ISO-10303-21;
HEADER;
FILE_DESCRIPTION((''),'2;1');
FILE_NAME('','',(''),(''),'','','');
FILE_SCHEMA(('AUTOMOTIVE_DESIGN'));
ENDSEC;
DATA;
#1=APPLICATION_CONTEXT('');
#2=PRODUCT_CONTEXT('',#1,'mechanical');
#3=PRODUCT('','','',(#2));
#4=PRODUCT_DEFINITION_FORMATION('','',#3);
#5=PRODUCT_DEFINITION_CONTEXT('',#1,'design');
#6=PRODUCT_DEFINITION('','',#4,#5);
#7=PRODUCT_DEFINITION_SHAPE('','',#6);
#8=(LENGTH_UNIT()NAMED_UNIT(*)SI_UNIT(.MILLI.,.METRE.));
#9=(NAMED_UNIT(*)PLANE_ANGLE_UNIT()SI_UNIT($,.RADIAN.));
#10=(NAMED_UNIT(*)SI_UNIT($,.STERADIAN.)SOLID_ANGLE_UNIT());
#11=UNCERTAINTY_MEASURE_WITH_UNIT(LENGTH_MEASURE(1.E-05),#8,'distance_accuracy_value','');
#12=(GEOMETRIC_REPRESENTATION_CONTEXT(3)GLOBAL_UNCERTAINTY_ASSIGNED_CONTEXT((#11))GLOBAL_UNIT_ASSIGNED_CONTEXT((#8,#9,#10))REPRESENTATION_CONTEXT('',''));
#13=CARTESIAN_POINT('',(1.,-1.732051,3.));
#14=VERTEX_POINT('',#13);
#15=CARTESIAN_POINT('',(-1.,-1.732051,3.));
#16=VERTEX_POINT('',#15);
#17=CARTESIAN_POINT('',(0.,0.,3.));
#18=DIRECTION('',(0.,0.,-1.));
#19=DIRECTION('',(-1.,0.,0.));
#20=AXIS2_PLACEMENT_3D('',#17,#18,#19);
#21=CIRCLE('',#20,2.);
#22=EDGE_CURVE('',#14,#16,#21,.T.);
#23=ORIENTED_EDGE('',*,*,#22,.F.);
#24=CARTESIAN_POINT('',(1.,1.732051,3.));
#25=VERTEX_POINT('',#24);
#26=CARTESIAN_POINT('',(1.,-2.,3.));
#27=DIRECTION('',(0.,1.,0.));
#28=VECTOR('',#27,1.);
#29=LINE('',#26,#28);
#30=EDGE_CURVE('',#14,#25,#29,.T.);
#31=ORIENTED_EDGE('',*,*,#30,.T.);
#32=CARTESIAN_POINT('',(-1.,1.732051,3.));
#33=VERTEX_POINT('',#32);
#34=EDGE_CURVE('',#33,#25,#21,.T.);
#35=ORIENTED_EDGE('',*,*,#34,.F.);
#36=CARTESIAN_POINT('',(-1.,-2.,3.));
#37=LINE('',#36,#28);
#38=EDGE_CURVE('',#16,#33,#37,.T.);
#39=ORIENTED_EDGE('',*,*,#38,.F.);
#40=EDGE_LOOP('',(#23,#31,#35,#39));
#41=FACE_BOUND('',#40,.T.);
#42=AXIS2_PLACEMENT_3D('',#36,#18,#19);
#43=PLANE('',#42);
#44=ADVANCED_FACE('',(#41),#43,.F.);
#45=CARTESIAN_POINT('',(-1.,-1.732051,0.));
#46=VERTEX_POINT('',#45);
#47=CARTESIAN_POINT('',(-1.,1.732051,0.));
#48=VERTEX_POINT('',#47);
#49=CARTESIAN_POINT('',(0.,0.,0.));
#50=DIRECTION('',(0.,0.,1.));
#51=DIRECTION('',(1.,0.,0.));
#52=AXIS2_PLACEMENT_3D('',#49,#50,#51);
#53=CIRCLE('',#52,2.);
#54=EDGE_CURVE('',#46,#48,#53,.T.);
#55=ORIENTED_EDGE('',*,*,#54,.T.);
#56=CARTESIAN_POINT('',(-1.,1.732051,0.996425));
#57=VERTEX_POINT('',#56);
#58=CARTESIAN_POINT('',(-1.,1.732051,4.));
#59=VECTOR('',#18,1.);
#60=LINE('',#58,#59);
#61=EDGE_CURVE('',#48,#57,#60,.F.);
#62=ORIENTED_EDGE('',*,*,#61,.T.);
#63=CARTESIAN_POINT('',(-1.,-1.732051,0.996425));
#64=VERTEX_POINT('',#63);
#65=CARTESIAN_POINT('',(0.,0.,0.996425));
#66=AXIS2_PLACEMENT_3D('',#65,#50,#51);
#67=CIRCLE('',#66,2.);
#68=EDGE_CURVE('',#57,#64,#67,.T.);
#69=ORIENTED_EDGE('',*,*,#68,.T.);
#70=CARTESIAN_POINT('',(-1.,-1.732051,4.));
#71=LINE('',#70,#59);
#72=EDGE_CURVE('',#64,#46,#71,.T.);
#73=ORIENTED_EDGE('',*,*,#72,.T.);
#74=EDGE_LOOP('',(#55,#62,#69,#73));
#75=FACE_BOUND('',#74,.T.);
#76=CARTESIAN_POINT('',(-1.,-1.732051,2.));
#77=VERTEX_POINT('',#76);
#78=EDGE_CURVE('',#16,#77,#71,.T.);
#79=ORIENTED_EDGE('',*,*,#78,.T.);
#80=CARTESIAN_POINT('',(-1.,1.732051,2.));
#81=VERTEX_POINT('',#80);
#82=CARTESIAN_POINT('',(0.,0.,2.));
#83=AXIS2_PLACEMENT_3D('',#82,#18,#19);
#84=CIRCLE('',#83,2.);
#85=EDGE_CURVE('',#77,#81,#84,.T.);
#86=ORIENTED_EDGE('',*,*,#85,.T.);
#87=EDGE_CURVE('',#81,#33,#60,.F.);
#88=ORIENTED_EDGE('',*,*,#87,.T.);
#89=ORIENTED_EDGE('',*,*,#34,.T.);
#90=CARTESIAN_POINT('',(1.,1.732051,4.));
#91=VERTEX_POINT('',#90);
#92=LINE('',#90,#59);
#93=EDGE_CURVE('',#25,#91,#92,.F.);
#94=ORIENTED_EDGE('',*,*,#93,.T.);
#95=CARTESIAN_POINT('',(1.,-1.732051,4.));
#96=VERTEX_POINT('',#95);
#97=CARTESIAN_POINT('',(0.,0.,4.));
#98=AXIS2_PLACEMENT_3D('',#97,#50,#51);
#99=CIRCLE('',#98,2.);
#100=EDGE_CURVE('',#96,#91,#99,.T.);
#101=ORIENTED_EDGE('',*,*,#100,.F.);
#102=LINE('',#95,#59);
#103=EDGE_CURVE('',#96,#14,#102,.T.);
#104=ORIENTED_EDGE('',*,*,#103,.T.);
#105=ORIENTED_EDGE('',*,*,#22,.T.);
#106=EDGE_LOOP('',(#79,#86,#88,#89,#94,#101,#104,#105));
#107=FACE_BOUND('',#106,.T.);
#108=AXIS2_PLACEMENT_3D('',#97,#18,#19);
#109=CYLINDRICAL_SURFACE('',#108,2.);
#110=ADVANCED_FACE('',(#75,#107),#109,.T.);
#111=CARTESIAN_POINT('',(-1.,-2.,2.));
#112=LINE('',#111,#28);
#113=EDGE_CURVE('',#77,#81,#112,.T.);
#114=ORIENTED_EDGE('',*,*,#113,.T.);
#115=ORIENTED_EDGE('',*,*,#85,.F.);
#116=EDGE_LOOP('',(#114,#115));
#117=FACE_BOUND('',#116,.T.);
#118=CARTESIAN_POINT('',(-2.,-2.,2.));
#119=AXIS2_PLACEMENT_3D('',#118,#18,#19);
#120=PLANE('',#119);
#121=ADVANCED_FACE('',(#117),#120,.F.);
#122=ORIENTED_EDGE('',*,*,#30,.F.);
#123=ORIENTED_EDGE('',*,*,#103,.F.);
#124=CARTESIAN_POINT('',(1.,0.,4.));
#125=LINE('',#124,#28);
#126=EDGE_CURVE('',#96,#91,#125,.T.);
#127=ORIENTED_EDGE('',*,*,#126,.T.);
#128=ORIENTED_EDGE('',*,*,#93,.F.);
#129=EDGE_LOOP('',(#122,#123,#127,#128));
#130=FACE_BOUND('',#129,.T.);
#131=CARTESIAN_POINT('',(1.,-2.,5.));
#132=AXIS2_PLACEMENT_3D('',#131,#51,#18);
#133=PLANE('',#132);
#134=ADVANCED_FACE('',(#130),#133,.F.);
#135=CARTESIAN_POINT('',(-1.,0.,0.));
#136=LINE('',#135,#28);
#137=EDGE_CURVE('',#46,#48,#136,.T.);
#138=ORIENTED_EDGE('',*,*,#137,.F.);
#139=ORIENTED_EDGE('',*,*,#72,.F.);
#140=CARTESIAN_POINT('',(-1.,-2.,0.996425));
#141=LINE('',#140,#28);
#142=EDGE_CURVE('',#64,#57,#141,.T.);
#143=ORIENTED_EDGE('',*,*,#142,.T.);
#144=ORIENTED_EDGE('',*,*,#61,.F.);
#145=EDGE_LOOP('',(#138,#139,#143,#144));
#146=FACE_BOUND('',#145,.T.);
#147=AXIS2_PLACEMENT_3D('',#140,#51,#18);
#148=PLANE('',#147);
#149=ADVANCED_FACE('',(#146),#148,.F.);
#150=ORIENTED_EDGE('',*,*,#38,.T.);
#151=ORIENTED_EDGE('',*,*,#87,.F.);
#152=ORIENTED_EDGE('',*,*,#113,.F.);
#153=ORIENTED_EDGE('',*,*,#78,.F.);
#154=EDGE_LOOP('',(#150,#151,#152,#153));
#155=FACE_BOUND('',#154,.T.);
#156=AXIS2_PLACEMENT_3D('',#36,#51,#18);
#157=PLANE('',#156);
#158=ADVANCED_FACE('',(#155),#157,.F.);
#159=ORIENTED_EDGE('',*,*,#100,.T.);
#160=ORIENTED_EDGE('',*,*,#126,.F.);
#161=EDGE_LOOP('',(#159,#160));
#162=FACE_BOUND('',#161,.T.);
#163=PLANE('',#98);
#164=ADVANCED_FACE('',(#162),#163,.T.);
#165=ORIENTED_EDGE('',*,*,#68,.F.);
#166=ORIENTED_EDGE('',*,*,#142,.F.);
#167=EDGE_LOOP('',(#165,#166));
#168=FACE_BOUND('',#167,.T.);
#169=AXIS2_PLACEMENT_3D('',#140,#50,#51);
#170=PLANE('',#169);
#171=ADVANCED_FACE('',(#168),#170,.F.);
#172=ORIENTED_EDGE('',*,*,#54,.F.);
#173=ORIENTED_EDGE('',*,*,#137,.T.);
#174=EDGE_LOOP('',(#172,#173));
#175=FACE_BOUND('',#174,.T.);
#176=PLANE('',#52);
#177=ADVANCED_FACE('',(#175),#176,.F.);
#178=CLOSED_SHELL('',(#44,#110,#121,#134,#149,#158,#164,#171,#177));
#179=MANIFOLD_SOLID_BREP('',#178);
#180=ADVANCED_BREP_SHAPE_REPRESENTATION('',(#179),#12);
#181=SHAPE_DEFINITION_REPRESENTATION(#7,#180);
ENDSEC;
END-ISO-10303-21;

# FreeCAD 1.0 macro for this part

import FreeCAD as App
import Part
import Sketcher
Q = App.Units.Quantity


def add_polygon(sketch, points):
    """Adds a closed chain of lines whose ends are joined by coincident constraints."""
    first, n = sketch.GeometryCount, len(points)
    for a, b in zip(points, points[1:] + points[:1]):
        sketch.addGeometry(Part.LineSegment(App.Vector(*a, 0), App.Vector(*b, 0)), False)
    for i in range(n):
        sketch.addConstraint(Sketcher.Constraint("Coincident", first + i, 2, first + (i + 1) % n, 1))

doc = App.newDocument("Part")
body = doc.addObject("PartDesign::Body", "Body")

sketch1 = doc.addObject("Sketcher::SketchObject", "Sketch")
body.addObject(sketch1)
sketch1.AttachmentSupport = (doc.XY_Plane, [""])
sketch1.MapMode = "FlatFace"
sketch1.addGeometry(Part.Circle(App.Vector(0, 0, 0), App.Vector(0, 0, 1), 2), False)
sketch1.addConstraint(Sketcher.Constraint("Coincident", 0, 3, -1, 1))
sketch1.addConstraint(Sketcher.Constraint("Diameter", 0, Q("4 mm")))
pad1 = doc.addObject("PartDesign::Pad", "Pad")
body.addObject(pad1)
pad1.Profile = sketch1
pad1.Length = 4

sketch2 = doc.addObject("Sketcher::SketchObject", "Sketch001")
body.addObject(sketch2)
sketch2.AttachmentSupport = (doc.XZ_Plane, [""])
sketch2.MapMode = "FlatFace"
add_polygon(sketch2, [(1, 5), (1, 3), (-1, 3), (-1, 2), (-2, 2), (-2, 5)])
add_polygon(sketch2, [(-2, 0), (-2, 1), (-1, 1), (-1, 0)])
sketch2.addConstraint(Sketcher.Constraint("Vertical", 0))
sketch2.addConstraint(Sketcher.Constraint("Horizontal", 1))
sketch2.addConstraint(Sketcher.Constraint("Vertical", 2))
sketch2.addConstraint(Sketcher.Constraint("Horizontal", 3))
sketch2.addConstraint(Sketcher.Constraint("Vertical", 4))
sketch2.addConstraint(Sketcher.Constraint("Horizontal", 5))
sketch2.addConstraint(Sketcher.Constraint("Vertical", 6))
sketch2.addConstraint(Sketcher.Constraint("Horizontal", 7))
sketch2.addConstraint(Sketcher.Constraint("Vertical", 8))
sketch2.addConstraint(Sketcher.Constraint("Horizontal", 9))
sketch2.addConstraint(Sketcher.Constraint("PointOnObject", 8, 2, -1))
sketch2.addConstraint(Sketcher.Constraint("Vertical", 4, 2, 6, 2))
sketch2.addConstraint(Sketcher.Constraint("Vertical", 2, 2, 7, 2))
sketch2.addConstraint(Sketcher.Constraint("Equal", 1, 0))
sketch2.addConstraint(Sketcher.Constraint("Equal", 9, 2))
sketch2.addConstraint(Sketcher.Constraint("DistanceX", 1, 2, 1, 1, Q("2 mm")))
sketch2.addConstraint(Sketcher.Constraint("DistanceX", 3, 2, 3, 1, Q("1 mm")))
sketch2.addConstraint(Sketcher.Constraint("DistanceX", -1, 1, 0, 2, Q("1 mm")))
sketch2.addConstraint(Sketcher.Constraint("DistanceY", -1, 1, 0, 2, Q("3 mm")))
sketch2.addConstraint(Sketcher.Constraint("DistanceY", 6, 1, 6, 2, Q("0.996425 mm")))
pocket1 = doc.addObject("PartDesign::Pocket", "Pocket")
body.addObject(pocket1)
pocket1.Profile = sketch2
pocket1.Length = 4
pocket1.Midplane = True

doc.recompute()
